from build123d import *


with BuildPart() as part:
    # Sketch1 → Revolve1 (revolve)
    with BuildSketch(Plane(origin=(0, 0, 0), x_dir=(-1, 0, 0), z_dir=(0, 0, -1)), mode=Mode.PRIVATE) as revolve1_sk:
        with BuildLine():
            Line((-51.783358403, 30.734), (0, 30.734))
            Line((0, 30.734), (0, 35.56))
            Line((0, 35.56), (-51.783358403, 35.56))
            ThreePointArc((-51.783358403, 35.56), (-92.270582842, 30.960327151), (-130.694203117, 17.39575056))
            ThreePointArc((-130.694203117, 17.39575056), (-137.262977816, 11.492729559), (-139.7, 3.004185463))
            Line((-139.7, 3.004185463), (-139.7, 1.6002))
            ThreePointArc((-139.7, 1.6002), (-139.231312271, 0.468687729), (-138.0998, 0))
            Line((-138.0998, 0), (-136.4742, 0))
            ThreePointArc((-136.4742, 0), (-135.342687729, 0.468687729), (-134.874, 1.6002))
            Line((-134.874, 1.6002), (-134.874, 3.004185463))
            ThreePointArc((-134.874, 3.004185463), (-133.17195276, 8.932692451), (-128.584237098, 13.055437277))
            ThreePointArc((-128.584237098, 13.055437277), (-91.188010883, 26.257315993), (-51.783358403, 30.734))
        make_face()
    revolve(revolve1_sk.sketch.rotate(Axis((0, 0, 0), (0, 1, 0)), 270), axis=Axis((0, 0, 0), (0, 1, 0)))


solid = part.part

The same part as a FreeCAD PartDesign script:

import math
import FreeCAD as App
import Part
import Sketcher
Q = App.Units.Quantity

doc = App.newDocument("Part")
body = doc.addObject("PartDesign::Body", "Body")

# Sketch on XY plane
sketch1 = body.newObject("Sketcher::SketchObject", "Sketch")
sketch1.AttachmentSupport = (doc.getObject("XY_Plane"), [""])
sketch1.MapMode = "FlatFace"
sketch1.addGeometry([
    Part.LineSegment(App.Vector(51.783358, 30.734, 0), App.Vector(0, 30.734, 0)),  # 0
    Part.LineSegment(App.Vector(0, 30.734, 0), App.Vector(0, 35.56, 0)),  # 1
    Part.LineSegment(App.Vector(0, 35.56, 0), App.Vector(51.783358, 35.56, 0)),  # 2
    Part.ArcOfCircle(Part.Circle(App.Vector(51.783358, -144.92809, 0), App.Vector(0, 0, 1), 180.48809), math.radians(64.074121), math.radians(90)),  # 3
    Part.ArcOfCircle(Part.Circle(App.Vector(123.698, 3.004185, 0), App.Vector(0, 0, 1), 16.002), math.radians(0), math.radians(64.074121)),  # 4
    Part.LineSegment(App.Vector(139.7, 3.004185, 0), App.Vector(139.7, 1.6002, 0)),  # 5
    Part.ArcOfCircle(Part.Circle(App.Vector(138.0998, 1.6002, 0), App.Vector(0, 0, 1), 1.6002), math.radians(-90), math.radians(0)),  # 6
    Part.LineSegment(App.Vector(138.0998, 0, 0), App.Vector(136.4742, 0, 0)),  # 7
    Part.ArcOfCircle(Part.Circle(App.Vector(136.4742, 1.6002, 0), App.Vector(0, 0, 1), 1.6002), math.radians(-180), math.radians(-90)),  # 8
    Part.LineSegment(App.Vector(134.874, 1.6002, 0), App.Vector(134.874, 3.004185, 0)),  # 9
    Part.ArcOfCircle(Part.Circle(App.Vector(123.698, 3.004185, 0), App.Vector(0, 0, 1), 11.176), math.radians(0), math.radians(64.074121)),  # 10
    Part.ArcOfCircle(Part.Circle(App.Vector(51.783358, -144.92809, 0), App.Vector(0, 0, 1), 175.66209), math.radians(64.074121), math.radians(90)),  # 11
], False)
sketch1.addConstraint([
    Sketcher.Constraint("Coincident", 0, 2, 1, 1),
    Sketcher.Constraint("Coincident", 1, 2, 2, 1),
    Sketcher.Constraint("Tangent", 2, 2, 3, 2),
    Sketcher.Constraint("Tangent", 3, 1, 4, 2),
    Sketcher.Constraint("Tangent", 4, 1, 5, 1),
    Sketcher.Constraint("Tangent", 5, 2, 6, 2),
    Sketcher.Constraint("Tangent", 6, 1, 7, 1),
    Sketcher.Constraint("Tangent", 7, 2, 8, 2),
    Sketcher.Constraint("Tangent", 8, 1, 9, 1),
    Sketcher.Constraint("Tangent", 9, 2, 10, 1),
    Sketcher.Constraint("Tangent", 10, 2, 11, 1),
    Sketcher.Constraint("Tangent", 11, 2, 0, 1),
    Sketcher.Constraint("Horizontal", 0),
    Sketcher.Constraint("Vertical", 1),
    Sketcher.Constraint("Horizontal", 2),
    Sketcher.Constraint("Vertical", 5),
    Sketcher.Constraint("Horizontal", 7),
    Sketcher.Constraint("Vertical", 9),
    Sketcher.Constraint("Coincident", 10, 3, 4, 3),
    Sketcher.Constraint("Coincident", 11, 3, 3, 3),
    Sketcher.Constraint("Equal", 6, 8),
    Sketcher.Constraint("PointOnObject", 0, 2, -2),
    Sketcher.Constraint("PointOnObject", 6, 1, -1),
    Sketcher.Constraint("Radius", 4, Q("0.63 in")),
    Sketcher.Constraint("Radius", 10, Q("0.44 in")),
    Sketcher.Constraint("Radius", 6, Q("0.063 in")),
    Sketcher.Constraint("DistanceY", -1, 1, 1, 2, Q("1.4 in")),
    Sketcher.Constraint("DistanceX", -1, 1, 4, 1, Q("5.5 in")),
    Sketcher.Constraint("Radius", 3, 180.48809),
    Sketcher.Constraint("DistanceX", 0, 2, 0, 1, 51.783358),
])
revolution = body.newObject("PartDesign::Revolution", "Revolution")
revolution.Profile = sketch1
revolution.ReferenceAxis = (sketch1, ["V_Axis"])
revolution.Angle = 360

doc.recompute()
